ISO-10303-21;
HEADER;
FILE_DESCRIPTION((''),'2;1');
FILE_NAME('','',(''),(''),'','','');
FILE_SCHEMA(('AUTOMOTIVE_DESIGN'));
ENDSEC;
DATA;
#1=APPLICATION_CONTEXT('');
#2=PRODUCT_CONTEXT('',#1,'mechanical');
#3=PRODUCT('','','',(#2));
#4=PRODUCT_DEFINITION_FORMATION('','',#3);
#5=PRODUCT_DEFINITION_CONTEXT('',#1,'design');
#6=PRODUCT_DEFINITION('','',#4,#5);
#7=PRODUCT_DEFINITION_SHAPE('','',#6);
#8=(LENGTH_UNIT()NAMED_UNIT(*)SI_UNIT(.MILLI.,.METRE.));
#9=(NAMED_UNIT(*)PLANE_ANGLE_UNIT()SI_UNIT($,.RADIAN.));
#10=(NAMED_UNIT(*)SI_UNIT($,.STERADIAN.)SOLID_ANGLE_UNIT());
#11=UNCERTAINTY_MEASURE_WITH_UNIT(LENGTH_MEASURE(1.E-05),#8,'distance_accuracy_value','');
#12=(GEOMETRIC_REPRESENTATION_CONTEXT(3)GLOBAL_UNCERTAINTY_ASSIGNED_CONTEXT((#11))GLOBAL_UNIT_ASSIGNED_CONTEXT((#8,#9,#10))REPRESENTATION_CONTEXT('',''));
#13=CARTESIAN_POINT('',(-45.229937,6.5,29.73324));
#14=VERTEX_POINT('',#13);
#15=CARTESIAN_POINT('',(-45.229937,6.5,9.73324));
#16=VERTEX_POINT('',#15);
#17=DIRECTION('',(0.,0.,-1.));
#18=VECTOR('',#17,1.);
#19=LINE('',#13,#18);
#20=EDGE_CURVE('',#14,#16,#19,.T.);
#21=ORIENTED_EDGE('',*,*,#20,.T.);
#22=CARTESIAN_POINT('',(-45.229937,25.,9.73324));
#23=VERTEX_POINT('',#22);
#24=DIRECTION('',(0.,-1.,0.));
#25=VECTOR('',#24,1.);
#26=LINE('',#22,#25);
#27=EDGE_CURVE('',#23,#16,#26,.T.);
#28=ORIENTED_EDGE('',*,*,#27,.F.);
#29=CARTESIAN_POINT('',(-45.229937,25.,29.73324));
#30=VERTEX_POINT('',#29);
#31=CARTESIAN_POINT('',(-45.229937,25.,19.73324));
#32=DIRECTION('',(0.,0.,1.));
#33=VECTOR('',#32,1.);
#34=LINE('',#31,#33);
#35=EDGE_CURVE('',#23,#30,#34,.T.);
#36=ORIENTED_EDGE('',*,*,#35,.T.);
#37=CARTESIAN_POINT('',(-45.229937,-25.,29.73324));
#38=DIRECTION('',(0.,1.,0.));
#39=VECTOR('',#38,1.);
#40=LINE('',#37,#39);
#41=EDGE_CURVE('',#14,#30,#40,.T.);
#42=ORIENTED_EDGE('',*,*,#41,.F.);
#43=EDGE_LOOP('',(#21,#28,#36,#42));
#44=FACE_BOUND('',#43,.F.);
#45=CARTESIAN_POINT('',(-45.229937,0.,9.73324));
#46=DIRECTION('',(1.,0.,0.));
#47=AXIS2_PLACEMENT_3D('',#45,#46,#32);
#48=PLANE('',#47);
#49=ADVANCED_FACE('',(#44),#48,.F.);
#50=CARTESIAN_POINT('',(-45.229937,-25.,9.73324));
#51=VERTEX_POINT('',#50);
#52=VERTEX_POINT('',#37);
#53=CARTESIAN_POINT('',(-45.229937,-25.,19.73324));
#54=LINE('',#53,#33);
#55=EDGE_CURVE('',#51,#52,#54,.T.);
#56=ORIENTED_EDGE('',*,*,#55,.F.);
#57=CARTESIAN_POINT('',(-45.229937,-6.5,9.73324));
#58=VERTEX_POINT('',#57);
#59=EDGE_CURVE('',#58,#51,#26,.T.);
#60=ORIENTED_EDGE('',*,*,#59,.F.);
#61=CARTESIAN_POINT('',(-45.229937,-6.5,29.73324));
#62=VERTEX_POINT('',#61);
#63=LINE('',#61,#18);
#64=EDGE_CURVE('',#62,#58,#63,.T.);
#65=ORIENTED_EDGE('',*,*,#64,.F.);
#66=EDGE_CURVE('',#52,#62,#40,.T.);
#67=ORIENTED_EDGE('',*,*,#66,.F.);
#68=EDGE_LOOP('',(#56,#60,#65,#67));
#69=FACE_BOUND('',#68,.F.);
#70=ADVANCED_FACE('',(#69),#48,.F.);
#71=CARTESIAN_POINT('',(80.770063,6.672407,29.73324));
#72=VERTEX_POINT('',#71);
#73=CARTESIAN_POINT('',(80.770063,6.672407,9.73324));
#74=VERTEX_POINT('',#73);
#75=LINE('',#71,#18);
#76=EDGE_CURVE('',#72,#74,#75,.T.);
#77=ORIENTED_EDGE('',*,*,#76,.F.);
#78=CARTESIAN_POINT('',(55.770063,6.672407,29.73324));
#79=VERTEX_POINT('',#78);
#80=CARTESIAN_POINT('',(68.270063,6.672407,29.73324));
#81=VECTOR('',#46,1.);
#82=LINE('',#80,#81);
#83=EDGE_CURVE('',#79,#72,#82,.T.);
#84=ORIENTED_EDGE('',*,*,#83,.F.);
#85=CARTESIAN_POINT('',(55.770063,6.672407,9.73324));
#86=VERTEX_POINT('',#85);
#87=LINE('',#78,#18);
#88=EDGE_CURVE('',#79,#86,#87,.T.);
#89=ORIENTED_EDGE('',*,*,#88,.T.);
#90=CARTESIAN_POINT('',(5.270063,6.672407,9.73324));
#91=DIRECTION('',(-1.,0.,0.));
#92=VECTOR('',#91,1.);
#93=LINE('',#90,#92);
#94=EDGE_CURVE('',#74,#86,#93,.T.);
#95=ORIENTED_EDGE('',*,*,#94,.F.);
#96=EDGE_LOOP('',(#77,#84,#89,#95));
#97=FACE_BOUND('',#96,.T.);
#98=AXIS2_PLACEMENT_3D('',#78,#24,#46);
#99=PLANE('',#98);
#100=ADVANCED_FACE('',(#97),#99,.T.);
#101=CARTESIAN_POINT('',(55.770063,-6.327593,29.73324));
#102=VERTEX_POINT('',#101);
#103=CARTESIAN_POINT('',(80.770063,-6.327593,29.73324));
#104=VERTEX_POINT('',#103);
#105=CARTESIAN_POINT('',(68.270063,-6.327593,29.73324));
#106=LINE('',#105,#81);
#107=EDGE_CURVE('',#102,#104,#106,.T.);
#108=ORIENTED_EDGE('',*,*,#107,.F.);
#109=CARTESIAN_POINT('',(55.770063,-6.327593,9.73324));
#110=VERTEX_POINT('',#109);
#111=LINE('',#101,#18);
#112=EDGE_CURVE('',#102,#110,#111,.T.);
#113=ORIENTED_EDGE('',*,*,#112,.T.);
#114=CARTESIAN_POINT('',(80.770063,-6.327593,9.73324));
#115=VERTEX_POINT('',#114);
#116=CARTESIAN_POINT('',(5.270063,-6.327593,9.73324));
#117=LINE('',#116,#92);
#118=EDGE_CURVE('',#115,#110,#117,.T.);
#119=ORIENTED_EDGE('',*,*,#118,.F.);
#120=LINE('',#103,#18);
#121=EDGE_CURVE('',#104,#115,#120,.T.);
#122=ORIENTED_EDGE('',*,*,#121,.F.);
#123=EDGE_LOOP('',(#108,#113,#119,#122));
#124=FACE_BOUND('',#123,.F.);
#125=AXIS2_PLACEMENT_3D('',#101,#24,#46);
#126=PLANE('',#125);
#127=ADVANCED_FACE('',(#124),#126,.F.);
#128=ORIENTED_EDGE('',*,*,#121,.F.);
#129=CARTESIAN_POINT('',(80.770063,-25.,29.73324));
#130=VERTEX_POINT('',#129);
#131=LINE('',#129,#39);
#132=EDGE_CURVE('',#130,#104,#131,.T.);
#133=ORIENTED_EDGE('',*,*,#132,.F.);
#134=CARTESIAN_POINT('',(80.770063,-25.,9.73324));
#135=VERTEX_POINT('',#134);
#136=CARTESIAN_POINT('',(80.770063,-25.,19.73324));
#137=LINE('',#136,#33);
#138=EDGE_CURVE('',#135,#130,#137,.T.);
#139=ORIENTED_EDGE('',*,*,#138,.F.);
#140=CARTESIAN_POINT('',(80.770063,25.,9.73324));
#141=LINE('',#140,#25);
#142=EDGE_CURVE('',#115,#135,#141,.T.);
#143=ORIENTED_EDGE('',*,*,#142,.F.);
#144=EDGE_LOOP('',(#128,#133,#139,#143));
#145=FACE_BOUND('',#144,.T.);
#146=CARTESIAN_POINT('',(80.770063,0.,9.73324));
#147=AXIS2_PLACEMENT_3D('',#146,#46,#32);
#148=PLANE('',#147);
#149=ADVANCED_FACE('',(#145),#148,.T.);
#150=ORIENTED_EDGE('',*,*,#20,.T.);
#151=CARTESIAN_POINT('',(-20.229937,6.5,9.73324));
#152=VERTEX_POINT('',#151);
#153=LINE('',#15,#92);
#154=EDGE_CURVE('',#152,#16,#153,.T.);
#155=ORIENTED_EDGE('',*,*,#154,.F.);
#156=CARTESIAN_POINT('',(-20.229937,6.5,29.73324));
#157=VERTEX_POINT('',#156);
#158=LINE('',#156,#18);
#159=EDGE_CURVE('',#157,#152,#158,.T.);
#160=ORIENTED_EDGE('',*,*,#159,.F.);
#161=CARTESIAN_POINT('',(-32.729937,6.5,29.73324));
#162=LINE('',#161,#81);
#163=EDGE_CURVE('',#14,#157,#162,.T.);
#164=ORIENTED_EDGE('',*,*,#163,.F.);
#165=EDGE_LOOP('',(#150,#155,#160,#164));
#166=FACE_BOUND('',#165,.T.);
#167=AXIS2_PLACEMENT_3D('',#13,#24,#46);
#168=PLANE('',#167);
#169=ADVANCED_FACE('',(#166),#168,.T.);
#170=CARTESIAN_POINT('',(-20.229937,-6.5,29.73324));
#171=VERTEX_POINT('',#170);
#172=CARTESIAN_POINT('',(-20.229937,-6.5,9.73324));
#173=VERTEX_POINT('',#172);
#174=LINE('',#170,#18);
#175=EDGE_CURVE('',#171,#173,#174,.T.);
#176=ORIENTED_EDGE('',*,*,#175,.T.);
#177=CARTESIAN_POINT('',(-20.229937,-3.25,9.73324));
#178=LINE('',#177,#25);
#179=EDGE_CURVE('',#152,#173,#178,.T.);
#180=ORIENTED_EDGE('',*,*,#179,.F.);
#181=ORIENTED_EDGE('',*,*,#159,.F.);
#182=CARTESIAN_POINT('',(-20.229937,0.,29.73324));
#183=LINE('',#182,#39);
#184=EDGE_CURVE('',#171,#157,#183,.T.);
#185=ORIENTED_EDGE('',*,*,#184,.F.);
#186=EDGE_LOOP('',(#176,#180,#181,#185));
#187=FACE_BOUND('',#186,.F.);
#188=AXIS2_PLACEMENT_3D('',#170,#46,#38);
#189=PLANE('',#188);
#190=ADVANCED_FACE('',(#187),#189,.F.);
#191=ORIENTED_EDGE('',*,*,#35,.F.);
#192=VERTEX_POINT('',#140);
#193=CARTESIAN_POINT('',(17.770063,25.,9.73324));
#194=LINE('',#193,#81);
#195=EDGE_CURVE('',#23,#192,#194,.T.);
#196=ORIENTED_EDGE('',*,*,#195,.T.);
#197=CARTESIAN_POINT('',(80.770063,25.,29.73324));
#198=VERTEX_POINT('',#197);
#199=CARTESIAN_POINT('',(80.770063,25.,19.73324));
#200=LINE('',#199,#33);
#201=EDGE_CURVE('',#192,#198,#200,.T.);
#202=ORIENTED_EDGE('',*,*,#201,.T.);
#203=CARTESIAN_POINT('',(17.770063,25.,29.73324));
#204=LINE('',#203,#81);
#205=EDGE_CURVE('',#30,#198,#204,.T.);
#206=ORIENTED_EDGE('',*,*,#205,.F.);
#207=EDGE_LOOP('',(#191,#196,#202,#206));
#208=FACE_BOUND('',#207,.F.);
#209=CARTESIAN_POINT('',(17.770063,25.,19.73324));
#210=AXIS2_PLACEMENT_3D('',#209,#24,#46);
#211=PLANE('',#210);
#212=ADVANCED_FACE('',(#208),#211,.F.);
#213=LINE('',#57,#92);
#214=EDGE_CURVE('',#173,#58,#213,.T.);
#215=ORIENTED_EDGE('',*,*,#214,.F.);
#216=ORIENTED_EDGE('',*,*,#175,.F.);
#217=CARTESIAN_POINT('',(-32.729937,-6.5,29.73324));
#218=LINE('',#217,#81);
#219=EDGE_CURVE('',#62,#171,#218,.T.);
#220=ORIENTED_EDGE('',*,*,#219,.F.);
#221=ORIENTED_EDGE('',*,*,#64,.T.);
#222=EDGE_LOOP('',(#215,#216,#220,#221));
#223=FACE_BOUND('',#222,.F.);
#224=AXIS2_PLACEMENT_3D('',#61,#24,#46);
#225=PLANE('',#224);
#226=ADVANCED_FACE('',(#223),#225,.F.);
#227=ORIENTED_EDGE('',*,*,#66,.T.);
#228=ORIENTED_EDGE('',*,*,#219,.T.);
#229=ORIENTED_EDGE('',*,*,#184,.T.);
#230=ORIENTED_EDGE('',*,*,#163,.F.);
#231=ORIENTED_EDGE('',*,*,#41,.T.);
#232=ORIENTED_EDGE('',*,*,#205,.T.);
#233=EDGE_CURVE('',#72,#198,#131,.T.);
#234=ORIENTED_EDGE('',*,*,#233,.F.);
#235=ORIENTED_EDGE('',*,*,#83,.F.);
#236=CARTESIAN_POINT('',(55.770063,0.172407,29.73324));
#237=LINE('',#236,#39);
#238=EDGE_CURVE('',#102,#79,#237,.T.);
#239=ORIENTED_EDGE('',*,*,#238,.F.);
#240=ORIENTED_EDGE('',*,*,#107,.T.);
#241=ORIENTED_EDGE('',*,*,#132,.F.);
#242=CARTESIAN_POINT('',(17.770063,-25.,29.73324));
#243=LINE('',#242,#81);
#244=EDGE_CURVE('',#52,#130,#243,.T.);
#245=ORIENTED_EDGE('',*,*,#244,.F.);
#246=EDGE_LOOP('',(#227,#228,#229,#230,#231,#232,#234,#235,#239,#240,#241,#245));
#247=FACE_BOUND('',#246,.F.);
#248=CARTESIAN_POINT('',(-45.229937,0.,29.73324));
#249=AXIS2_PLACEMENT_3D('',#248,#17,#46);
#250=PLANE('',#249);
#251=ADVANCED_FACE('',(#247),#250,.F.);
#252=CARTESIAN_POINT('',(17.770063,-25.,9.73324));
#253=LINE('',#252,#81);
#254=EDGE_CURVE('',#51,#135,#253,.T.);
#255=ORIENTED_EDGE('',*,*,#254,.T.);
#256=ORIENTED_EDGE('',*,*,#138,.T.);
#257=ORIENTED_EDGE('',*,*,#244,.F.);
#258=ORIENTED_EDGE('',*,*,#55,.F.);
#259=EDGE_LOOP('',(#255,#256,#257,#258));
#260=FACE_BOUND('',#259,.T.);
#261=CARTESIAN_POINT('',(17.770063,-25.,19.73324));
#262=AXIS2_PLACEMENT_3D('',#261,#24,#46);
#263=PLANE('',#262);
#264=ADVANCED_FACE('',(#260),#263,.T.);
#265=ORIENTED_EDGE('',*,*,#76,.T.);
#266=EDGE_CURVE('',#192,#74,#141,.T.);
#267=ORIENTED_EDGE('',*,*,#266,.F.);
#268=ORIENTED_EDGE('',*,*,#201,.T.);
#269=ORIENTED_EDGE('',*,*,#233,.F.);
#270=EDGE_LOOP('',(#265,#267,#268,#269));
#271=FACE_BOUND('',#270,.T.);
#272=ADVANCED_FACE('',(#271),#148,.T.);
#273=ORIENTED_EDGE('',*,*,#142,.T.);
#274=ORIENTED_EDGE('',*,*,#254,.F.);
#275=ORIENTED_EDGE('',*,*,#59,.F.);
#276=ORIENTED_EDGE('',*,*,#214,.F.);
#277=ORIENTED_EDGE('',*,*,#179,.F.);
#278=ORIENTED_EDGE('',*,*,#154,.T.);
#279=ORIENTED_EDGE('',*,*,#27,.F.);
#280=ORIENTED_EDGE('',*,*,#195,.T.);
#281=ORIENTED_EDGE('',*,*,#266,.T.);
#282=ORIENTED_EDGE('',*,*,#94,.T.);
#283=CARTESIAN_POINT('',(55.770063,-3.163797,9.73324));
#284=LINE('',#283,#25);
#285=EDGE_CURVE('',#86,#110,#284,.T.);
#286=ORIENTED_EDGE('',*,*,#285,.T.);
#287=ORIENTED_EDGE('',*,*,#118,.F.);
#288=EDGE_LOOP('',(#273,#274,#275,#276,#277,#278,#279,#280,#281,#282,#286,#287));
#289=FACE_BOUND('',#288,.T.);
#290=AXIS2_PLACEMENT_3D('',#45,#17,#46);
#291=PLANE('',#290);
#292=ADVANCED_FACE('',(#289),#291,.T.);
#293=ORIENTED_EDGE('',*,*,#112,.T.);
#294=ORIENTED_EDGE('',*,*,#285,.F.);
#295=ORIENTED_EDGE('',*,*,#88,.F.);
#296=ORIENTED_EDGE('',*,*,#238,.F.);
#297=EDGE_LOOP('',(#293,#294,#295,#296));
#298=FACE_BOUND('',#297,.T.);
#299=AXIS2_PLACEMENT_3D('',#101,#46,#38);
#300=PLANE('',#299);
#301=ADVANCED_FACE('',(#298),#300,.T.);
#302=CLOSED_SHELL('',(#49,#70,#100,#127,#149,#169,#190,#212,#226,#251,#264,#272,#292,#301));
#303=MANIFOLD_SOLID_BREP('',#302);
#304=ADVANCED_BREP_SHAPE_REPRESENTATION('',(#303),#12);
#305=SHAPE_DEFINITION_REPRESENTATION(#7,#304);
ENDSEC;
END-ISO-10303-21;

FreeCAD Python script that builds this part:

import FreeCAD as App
import Part
import Sketcher
Q = App.Units.Quantity


def add_polygon(sketch, points):
    """Adds a closed chain of lines whose ends are joined by coincident constraints."""
    first, n = sketch.GeometryCount, len(points)
    for a, b in zip(points, points[1:] + points[:1]):
        sketch.addGeometry(Part.LineSegment(App.Vector(*a, 0), App.Vector(*b, 0)), False)
    for i in range(n):
        sketch.addConstraint(Sketcher.Constraint("Coincident", first + i, 2, first + (i + 1) % n, 1))

doc = App.newDocument("Part")
body = doc.addObject("PartDesign::Body", "Body")

# Sketch on XZ plane
sketch1 = doc.addObject("Sketcher::SketchObject", "Sketch")
body.addObject(sketch1)
sketch1.AttachmentSupport = (doc.XZ_Plane, [""])
sketch1.MapMode = "FlatFace"
add_polygon(sketch1, [(-45, 30), (-45, 10), (81, 10), (81, 30)])  # lines 0-3
sketch1.addConstraint([
    Sketcher.Constraint("Vertical", 0),
    Sketcher.Constraint("Horizontal", 1),
    Sketcher.Constraint("Vertical", 2),
    Sketcher.Constraint("Horizontal", 3),
    Sketcher.Constraint("DistanceX", 1, 1, 1, 2, Q("126 mm")),
    Sketcher.Constraint("DistanceY", 0, 2, 0, 1, Q("20 mm")),
    Sketcher.Constraint("DistanceY", -1, 1, 0, 2, Q("9.73324 mm")),
    Sketcher.Constraint("DistanceX", 0, 2, -1, 1, Q("45.229937 mm")),
])
pad1 = doc.addObject("PartDesign::Pad", "Pad")
body.addObject(pad1)
pad1.Profile = sketch1
pad1.Length = 50
pad1.Midplane = True

# Sketch on XY plane
sketch2 = doc.addObject("Sketcher::SketchObject", "Sketch001")
body.addObject(sketch2)
sketch2.AttachmentSupport = (doc.XY_Plane, [""])
sketch2.MapMode = "FlatFace"
sketch2.AttachmentOffset = App.Placement(App.Vector(0, 0, 29.73324), App.Rotation())
add_polygon(sketch2, [(-45, 6), (-45, -6), (-20, -6), (-20, 6)])  # lines 0-3
add_polygon(sketch2, [(56, 7), (56, -6), (81, -6), (81, 7)])  # lines 4-7
sketch2.addConstraint([
    Sketcher.Constraint("Vertical", 0),
    Sketcher.Constraint("Horizontal", 1),
    Sketcher.Constraint("Vertical", 2),
    Sketcher.Constraint("Horizontal", 3),
    Sketcher.Constraint("Vertical", 4),
    Sketcher.Constraint("Horizontal", 5),
    Sketcher.Constraint("Vertical", 6),
    Sketcher.Constraint("Horizontal", 7),
    Sketcher.Constraint("Equal", 3, 5),
    Sketcher.Constraint("Equal", 2, 4),
    Sketcher.Constraint("DistanceX", 1, 1, 1, 2, Q("25 mm")),
    Sketcher.Constraint("DistanceY", 0, 2, 0, 1, Q("13 mm")),
    Sketcher.Constraint("DistanceX", 1, 2, 4, 2, Q("76 mm")),
    Sketcher.Constraint("DistanceY", 0, 2, -1, 1, Q("6.5 mm")),
    Sketcher.Constraint("DistanceX", 0, 2, -1, 1, Q("45.229937 mm")),
    Sketcher.Constraint("DistanceY", 4, 2, -1, 1, Q("6.327593 mm")),
])
pocket1 = doc.addObject("PartDesign::Pocket", "Pocket")
body.addObject(pocket1)
pocket1.Profile = sketch2
pocket1.Type = "ThroughAll"

doc.recompute()
